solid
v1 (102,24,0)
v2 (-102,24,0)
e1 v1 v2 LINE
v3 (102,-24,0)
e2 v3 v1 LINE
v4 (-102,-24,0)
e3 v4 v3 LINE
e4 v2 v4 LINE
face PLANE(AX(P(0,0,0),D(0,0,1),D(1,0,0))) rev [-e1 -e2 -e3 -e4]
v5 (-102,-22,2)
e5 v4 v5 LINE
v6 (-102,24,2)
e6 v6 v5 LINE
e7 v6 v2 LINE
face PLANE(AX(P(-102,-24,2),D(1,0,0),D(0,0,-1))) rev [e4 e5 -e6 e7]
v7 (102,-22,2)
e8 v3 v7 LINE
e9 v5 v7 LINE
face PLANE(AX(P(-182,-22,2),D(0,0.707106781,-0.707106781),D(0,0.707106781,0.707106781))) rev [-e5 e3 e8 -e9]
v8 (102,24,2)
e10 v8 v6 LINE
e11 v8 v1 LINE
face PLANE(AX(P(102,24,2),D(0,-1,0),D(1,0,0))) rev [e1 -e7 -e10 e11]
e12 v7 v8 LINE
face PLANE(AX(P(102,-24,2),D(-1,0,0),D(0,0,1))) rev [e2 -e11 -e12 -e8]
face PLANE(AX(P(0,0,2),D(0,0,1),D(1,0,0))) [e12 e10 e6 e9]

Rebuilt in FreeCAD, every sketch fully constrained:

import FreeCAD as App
import Part
import Sketcher

V = App.Vector

doc = App.newDocument("Part")
body = doc.addObject("PartDesign::Body", "Body")

# Sketch on XY plane
sketch1 = doc.addObject("Sketcher::SketchObject", "Sketch")
body.addObject(sketch1)
sketch1.AttachmentSupport = (doc.XY_Plane, [""])
sketch1.MapMode = "FlatFace"
sketch1.addGeometry([
    Part.LineSegment(V(-102, 24, 0), V(-102, -24, 0)),
    Part.LineSegment(V(-102, -24, 0), V(102, -24, 0)),
    Part.LineSegment(V(102, -24, 0), V(102, 24, 0)),
    Part.LineSegment(V(102, 24, 0), V(-102, 24, 0)),
], False)
sketch1.addConstraint([
    Sketcher.Constraint("Coincident", 0, 2, 1, 1),
    Sketcher.Constraint("Coincident", 1, 2, 2, 1),
    Sketcher.Constraint("Coincident", 2, 2, 3, 1),
    Sketcher.Constraint("Coincident", 3, 2, 0, 1),
    Sketcher.Constraint("Vertical", 0),
    Sketcher.Constraint("Horizontal", 1),
    Sketcher.Constraint("Vertical", 2),
    Sketcher.Constraint("Horizontal", 3),
    Sketcher.Constraint("Symmetric", 0, 2, 2, 2, -1, 1),
    Sketcher.Constraint("DistanceX", 1, 1, 1, 2, 204.0),
    Sketcher.Constraint("DistanceY", 0, 2, 0, 1, 48.0),
])
pad1 = doc.addObject("PartDesign::Pad", "Pad")
body.addObject(pad1)
pad1.Profile = sketch1
pad1.Length = 2

# Sketch on YZ plane
sketch2 = doc.addObject("Sketcher::SketchObject", "Sketch001")
body.addObject(sketch2)
sketch2.AttachmentSupport = (doc.YZ_Plane, [""])
sketch2.MapMode = "FlatFace"
sketch2.AttachmentOffset = App.Placement(V(0, 0, 102), App.Rotation())
sketch2.addGeometry([
    Part.LineSegment(V(-24, 2, 0), V(-24, 0, 0)),
    Part.LineSegment(V(-24, 0, 0), V(-22, 2, 0)),
    Part.LineSegment(V(-22, 2, 0), V(-24, 2, 0)),
], False)
sketch2.addConstraint([
    Sketcher.Constraint("Coincident", 0, 2, 1, 1),
    Sketcher.Constraint("Coincident", 1, 2, 2, 1),
    Sketcher.Constraint("Coincident", 2, 2, 0, 1),
    Sketcher.Constraint("Vertical", 0),
    Sketcher.Constraint("Horizontal", 2),
    Sketcher.Constraint("PointOnObject", 0, 2, -1),
    Sketcher.Constraint("Equal", 2, 0),
    Sketcher.Constraint("DistanceX", 2, 2, 2, 1, 2.0),
    Sketcher.Constraint("DistanceX", 0, 2, -1, 1, 24.0),
])
pocket1 = doc.addObject("PartDesign::Pocket", "Pocket")
body.addObject(pocket1)
pocket1.Profile = sketch2
pocket1.Length = 284

doc.recompute()
